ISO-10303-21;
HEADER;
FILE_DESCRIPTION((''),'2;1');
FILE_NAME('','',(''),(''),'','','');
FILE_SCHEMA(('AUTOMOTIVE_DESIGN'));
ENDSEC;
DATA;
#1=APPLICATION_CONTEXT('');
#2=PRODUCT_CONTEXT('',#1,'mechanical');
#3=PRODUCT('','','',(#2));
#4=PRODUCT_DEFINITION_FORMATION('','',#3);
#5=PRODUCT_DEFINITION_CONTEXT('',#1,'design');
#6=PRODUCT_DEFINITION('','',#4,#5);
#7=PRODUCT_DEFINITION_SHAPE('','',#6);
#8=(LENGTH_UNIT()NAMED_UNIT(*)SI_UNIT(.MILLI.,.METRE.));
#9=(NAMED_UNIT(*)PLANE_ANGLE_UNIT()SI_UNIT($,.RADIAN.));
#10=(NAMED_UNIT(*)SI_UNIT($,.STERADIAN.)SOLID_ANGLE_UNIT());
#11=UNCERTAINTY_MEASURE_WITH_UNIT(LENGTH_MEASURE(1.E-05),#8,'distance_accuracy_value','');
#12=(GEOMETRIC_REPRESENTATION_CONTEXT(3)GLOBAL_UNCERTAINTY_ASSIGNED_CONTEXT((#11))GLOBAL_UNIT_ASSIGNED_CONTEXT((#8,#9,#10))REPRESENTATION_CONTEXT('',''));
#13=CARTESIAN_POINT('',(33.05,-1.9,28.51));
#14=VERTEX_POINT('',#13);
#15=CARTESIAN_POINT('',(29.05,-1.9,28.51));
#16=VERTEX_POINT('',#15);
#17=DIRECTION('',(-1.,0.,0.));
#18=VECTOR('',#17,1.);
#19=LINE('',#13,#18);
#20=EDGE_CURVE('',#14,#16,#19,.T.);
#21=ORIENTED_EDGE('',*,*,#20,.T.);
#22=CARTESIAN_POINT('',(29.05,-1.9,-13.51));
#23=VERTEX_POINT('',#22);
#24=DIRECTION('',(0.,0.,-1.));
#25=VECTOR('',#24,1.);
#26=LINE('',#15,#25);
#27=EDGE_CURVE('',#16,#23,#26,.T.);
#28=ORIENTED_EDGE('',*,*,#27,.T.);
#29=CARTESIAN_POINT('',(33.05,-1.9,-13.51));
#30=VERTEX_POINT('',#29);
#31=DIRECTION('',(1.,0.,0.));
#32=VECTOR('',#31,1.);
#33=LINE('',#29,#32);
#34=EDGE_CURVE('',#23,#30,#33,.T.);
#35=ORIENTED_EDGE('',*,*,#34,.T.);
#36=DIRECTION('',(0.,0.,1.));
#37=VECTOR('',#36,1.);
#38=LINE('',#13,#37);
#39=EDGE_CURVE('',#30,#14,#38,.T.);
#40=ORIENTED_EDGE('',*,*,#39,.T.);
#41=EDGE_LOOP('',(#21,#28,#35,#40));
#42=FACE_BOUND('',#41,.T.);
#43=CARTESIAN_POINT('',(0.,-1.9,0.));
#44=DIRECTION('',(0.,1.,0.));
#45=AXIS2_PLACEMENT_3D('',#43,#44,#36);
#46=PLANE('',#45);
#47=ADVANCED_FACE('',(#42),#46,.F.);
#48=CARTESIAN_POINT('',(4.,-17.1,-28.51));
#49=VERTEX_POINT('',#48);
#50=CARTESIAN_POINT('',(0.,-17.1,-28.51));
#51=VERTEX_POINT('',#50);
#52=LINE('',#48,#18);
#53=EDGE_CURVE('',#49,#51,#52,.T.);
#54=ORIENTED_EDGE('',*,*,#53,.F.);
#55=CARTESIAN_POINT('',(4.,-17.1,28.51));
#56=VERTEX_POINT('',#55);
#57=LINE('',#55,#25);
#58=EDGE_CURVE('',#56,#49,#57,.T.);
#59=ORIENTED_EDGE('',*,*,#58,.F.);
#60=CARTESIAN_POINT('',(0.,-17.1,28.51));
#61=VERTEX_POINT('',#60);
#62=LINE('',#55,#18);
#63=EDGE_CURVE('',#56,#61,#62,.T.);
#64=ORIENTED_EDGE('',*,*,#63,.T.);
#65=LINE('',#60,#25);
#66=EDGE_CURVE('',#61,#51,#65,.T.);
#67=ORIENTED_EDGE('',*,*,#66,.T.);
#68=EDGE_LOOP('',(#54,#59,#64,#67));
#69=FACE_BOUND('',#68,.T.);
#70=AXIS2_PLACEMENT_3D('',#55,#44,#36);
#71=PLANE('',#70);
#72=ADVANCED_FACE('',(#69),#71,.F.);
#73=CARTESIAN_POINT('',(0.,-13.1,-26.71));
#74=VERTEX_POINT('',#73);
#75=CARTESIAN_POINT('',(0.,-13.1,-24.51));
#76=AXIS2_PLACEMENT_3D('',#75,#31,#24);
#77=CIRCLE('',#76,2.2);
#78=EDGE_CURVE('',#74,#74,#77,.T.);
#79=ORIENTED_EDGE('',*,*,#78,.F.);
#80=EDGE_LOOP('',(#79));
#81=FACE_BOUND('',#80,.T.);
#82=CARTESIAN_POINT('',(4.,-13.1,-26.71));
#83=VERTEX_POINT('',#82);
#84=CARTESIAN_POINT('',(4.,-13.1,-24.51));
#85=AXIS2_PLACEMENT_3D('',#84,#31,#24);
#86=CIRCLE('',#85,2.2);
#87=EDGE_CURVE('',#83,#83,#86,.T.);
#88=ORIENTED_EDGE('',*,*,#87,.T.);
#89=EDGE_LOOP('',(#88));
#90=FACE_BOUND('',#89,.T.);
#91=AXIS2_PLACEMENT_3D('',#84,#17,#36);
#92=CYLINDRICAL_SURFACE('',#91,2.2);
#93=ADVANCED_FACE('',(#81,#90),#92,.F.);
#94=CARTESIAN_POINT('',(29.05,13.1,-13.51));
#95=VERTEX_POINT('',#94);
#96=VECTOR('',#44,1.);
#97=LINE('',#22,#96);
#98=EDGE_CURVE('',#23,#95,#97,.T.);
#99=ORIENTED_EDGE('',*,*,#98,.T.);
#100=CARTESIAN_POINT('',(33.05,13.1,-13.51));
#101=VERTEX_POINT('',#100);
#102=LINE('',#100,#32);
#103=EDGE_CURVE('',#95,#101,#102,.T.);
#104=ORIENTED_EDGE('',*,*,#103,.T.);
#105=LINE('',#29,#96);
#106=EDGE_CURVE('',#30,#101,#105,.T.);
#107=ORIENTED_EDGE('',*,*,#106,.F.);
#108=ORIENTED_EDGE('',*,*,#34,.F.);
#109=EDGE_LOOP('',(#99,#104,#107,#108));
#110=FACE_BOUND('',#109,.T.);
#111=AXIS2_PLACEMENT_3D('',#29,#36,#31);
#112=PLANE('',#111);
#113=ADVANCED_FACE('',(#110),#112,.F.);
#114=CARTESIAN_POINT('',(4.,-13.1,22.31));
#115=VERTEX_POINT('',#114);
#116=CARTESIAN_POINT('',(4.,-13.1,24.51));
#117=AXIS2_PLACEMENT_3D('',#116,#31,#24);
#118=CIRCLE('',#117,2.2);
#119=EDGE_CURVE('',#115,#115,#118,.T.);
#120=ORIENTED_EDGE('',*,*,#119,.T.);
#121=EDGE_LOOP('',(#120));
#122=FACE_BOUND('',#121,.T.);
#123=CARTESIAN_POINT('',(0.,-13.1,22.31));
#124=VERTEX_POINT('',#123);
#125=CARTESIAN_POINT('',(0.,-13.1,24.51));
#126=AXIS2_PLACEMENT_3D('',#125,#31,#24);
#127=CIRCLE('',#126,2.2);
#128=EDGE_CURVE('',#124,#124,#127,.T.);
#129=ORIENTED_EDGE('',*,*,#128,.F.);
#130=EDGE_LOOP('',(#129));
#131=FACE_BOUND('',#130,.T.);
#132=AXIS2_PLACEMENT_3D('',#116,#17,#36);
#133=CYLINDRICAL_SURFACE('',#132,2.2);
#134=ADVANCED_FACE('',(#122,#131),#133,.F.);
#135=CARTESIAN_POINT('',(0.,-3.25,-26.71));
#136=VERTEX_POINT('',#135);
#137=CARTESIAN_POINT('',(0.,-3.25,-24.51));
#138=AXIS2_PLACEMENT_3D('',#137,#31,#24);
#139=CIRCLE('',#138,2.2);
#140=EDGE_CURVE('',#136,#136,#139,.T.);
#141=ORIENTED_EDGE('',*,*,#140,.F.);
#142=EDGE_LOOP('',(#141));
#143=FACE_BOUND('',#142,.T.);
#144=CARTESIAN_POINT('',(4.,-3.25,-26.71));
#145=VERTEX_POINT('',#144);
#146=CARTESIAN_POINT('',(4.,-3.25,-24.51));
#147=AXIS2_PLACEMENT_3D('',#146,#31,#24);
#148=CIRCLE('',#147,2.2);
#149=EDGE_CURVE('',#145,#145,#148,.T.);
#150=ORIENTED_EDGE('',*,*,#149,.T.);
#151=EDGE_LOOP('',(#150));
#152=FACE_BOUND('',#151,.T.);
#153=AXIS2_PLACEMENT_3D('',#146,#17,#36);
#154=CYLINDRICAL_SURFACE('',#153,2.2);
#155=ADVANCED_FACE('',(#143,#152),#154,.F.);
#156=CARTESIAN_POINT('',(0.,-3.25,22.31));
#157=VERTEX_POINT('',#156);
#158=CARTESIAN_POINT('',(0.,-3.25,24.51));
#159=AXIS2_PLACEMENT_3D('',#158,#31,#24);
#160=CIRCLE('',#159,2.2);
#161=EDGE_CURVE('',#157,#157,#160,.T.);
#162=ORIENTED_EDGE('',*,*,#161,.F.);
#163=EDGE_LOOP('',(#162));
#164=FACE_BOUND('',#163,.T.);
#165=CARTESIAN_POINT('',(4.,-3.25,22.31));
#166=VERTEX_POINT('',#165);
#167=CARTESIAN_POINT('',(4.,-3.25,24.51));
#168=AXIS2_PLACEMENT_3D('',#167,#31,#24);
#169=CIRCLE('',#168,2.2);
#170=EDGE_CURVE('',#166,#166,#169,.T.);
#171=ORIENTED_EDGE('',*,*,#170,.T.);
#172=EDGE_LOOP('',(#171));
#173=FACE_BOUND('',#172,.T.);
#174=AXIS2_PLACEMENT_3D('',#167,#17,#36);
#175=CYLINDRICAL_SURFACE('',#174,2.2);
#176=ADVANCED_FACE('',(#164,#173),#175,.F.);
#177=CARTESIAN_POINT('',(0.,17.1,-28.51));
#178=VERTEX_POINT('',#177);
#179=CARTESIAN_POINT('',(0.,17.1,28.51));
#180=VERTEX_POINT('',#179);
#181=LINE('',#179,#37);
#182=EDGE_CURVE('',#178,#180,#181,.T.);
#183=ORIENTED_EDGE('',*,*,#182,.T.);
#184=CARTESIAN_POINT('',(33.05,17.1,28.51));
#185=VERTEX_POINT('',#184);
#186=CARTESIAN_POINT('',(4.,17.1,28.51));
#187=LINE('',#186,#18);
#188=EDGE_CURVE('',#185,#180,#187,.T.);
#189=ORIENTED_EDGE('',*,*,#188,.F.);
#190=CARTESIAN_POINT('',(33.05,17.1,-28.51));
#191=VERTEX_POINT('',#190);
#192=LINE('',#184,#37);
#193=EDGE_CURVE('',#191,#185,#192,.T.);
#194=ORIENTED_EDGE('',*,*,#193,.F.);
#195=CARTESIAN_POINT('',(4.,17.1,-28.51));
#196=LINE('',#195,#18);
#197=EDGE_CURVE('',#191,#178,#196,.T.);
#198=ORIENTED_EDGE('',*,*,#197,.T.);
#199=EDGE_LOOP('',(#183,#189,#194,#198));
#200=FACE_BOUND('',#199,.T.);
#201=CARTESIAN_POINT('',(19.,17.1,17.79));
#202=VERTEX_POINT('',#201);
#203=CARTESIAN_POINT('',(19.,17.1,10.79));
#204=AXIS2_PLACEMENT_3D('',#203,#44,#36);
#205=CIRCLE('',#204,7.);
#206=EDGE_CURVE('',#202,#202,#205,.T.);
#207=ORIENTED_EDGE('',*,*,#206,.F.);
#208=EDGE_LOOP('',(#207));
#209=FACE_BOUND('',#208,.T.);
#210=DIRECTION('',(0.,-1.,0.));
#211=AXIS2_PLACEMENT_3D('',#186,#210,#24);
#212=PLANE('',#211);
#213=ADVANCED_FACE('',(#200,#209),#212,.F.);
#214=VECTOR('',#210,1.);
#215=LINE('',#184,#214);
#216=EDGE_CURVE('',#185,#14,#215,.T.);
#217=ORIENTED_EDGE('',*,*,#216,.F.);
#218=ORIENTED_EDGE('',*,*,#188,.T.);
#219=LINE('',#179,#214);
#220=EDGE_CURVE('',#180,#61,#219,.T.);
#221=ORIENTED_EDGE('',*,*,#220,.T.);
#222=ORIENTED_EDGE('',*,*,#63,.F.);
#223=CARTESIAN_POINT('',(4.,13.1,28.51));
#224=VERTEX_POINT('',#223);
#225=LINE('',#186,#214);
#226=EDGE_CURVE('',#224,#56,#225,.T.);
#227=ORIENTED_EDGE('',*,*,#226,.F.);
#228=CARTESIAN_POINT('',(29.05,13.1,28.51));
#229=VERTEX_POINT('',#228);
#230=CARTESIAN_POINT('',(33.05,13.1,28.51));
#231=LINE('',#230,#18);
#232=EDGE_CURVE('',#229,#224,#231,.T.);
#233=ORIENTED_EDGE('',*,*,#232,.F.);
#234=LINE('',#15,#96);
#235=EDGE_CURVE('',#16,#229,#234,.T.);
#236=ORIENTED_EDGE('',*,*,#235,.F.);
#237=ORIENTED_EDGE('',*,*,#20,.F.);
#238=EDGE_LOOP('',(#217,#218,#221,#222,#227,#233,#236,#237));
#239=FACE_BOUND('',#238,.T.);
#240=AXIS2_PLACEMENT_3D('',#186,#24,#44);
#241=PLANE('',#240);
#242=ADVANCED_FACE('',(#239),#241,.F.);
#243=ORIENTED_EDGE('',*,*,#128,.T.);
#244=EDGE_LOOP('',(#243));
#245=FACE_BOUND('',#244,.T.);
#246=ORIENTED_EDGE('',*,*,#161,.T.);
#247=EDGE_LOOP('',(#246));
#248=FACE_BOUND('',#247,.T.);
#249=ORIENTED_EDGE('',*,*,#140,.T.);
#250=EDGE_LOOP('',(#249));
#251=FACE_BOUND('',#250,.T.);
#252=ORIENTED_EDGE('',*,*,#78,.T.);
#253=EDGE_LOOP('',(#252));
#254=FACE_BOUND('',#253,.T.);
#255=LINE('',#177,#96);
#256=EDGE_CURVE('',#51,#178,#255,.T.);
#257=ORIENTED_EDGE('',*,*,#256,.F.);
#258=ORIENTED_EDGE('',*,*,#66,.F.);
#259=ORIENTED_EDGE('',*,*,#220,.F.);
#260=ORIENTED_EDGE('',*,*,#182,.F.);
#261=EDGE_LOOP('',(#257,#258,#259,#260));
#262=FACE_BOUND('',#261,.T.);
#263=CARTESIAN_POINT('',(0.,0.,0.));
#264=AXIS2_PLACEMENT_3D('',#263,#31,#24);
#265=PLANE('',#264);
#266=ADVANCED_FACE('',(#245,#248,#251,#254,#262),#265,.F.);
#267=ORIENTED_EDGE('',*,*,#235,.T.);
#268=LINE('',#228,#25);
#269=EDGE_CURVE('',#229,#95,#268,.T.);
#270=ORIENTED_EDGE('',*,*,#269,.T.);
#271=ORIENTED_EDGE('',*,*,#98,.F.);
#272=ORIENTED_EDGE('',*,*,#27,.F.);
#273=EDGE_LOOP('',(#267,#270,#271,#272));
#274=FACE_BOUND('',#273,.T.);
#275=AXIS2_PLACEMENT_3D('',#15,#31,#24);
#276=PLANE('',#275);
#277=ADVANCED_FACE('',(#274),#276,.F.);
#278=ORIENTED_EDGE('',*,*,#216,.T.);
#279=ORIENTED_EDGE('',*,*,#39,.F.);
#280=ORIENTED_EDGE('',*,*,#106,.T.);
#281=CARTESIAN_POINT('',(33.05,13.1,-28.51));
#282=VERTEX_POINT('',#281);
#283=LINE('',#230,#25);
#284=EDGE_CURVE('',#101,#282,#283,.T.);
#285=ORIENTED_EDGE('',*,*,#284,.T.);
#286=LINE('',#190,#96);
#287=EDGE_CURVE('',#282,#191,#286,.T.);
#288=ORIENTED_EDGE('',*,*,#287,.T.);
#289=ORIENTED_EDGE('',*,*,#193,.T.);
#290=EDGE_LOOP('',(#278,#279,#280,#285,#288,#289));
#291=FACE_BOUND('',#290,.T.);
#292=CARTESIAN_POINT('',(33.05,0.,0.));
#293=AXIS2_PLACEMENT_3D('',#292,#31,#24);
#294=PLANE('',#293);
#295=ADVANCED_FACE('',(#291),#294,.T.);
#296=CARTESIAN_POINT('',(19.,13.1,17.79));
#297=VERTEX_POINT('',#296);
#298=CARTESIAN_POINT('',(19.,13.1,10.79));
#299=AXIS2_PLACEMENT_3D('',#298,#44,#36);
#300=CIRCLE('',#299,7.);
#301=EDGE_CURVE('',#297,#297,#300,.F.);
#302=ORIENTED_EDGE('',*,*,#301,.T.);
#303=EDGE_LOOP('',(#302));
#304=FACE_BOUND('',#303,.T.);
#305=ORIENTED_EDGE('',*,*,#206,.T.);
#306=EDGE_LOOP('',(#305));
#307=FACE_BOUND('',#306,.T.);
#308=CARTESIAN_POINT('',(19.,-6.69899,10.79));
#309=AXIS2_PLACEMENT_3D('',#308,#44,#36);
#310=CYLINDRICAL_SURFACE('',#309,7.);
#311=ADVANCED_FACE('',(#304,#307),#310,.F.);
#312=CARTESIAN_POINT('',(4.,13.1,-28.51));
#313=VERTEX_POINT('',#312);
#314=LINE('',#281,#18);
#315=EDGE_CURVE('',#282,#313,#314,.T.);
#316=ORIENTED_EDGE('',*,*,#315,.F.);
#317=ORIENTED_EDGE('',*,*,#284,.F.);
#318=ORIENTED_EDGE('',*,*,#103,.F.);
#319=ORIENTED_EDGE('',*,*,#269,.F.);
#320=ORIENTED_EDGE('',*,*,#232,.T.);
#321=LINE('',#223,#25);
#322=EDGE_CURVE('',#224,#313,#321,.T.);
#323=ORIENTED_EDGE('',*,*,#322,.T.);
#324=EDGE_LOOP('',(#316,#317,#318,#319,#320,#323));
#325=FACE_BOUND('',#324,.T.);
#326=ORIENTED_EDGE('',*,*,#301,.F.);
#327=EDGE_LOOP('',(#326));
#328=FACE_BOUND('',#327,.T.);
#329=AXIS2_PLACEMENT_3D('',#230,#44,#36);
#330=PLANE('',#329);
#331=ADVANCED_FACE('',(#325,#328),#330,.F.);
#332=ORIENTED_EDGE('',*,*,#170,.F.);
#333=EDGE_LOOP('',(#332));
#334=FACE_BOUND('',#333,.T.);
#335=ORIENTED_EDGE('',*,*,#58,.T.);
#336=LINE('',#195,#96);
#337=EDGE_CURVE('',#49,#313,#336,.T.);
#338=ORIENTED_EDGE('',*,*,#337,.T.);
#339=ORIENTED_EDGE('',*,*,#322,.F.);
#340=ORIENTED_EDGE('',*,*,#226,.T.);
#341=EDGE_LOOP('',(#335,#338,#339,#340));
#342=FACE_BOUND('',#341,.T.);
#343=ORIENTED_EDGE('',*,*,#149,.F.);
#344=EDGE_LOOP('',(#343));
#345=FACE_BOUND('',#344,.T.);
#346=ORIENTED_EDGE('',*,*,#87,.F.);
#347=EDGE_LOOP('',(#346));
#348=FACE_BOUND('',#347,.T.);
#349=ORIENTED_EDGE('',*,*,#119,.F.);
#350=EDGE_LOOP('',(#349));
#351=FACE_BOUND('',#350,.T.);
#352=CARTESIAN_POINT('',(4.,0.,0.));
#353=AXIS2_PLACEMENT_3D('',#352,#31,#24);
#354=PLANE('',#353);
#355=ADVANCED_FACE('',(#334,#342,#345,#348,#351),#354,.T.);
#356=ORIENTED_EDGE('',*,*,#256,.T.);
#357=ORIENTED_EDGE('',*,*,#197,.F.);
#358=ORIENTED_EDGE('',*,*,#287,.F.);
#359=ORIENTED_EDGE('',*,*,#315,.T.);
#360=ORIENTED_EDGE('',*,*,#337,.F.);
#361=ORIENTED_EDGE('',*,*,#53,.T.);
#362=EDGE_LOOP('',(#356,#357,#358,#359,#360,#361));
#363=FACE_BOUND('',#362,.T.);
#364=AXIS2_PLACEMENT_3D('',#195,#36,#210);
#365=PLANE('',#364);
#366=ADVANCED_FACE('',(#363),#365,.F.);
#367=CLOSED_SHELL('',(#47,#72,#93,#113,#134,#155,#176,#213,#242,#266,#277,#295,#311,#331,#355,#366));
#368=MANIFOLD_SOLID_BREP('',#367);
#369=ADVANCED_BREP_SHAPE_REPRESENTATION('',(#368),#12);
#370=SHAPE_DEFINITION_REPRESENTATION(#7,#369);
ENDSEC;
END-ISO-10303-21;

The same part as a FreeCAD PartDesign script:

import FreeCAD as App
import Part
import Sketcher
Q = App.Units.Quantity


def add_polygon(sketch, points):
    """Adds a closed chain of lines whose ends are joined by coincident constraints."""
    first, n = sketch.GeometryCount, len(points)
    for a, b in zip(points, points[1:] + points[:1]):
        sketch.addGeometry(Part.LineSegment(App.Vector(*a, 0), App.Vector(*b, 0)), False)
    for i in range(n):
        sketch.addConstraint(Sketcher.Constraint("Coincident", first + i, 2, first + (i + 1) % n, 1))

doc = App.newDocument("Part")
body = doc.addObject("PartDesign::Body", "Body")

sketch1 = body.newObject("Sketcher::SketchObject", "Sketch")
sketch1.AttachmentSupport = (doc.getObject("YZ_Plane"), [""])
sketch1.MapMode = "FlatFace"
add_polygon(sketch1, [(17.1, 28.51), (-17.1, 28.51), (-17.1, -28.51), (17.1, -28.51)])
sketch1.addGeometry(Part.Circle(App.Vector(-13.1, 24.51, 0), App.Vector(0, 0, 1), 2.2), False)
sketch1.addGeometry(Part.Circle(App.Vector(-13.1, -24.51, 0), App.Vector(0, 0, 1), 2.2), False)
sketch1.addGeometry(Part.Circle(App.Vector(-3.25, 24.51, 0), App.Vector(0, 0, 1), 2.2), False)
sketch1.addGeometry(Part.Circle(App.Vector(-3.25, -24.51, 0), App.Vector(0, 0, 1), 2.2), False)
sketch1.addConstraint([
    Sketcher.Constraint("Horizontal", 0),
    Sketcher.Constraint("Vertical", 1),
    Sketcher.Constraint("Horizontal", 2),
    Sketcher.Constraint("Vertical", 3),
    Sketcher.Constraint("Equal", 4, 5),
    Sketcher.Constraint("Equal", 5, 6),
    Sketcher.Constraint("Equal", 6, 7),
    Sketcher.Constraint("Symmetric", 0, 2, 2, 2, -1, 1),
    Sketcher.Constraint("Symmetric", 4, 3, 5, 3, -1),
    Sketcher.Constraint("Symmetric", 6, 3, 7, 3, -1),
    Sketcher.Constraint("Horizontal", 4, 3, 6, 3),
    Sketcher.Constraint("Diameter", 4, Q("4.4 mm")),
    Sketcher.Constraint("DistanceX", 0, 2, 0, 1, Q("34.2 mm")),
    Sketcher.Constraint("DistanceX", 0, 2, 4, 3, Q("4 mm")),
    Sketcher.Constraint("DistanceY", 4, 3, 0, 2, Q("4 mm")),
    Sketcher.Constraint("DistanceY", 1, 2, 1, 1, Q("57.02 mm")),
    Sketcher.Constraint("DistanceX", 6, 3, -1, 1, Q("3.25 mm")),
])
pad1 = body.newObject("PartDesign::Pad", "Pad")
pad1.Profile = sketch1
pad1.Length = 4

sketch2 = body.newObject("Sketcher::SketchObject", "Sketch001")
sketch2.AttachmentSupport = (doc.getObject("YZ_Plane"), [""])
sketch2.MapMode = "FlatFace"
sketch2.AttachmentOffset = App.Placement(App.Vector(0, 0, 4), App.Rotation())
add_polygon(sketch2, [(17.1, 28.51), (13.1, 28.51), (13.1, -28.51), (17.1, -28.51)])
sketch2.addConstraint([
    Sketcher.Constraint("Horizontal", 0),
    Sketcher.Constraint("Vertical", 1),
    Sketcher.Constraint("Horizontal", 2),
    Sketcher.Constraint("Vertical", 3),
    Sketcher.Constraint("DistanceX", 0, 2, 0, 1, Q("4 mm")),
    Sketcher.Constraint("DistanceY", 1, 2, 1, 1, Q("57.02 mm")),
    Sketcher.Constraint("DistanceX", -1, 1, 0, 2, Q("13.1 mm")),
    Sketcher.Constraint("DistanceY", -1, 1, 0, 2, Q("28.51 mm")),
])
pad2 = body.newObject("PartDesign::Pad", "Pad001")
pad2.Profile = sketch2
pad2.Length = 29.05

sketch3 = body.newObject("Sketcher::SketchObject", "Sketch002")
sketch3.AttachmentSupport = (doc.getObject("XZ_Plane"), [""])
sketch3.MapMode = "FlatFace"
sketch3.AttachmentOffset = App.Placement(App.Vector(0, 0, -13.1), App.Rotation())
add_polygon(sketch3, [(29.05, 28.51), (29.05, -13.51), (33.05, -13.51), (33.05, 28.51)])
sketch3.addConstraint([
    Sketcher.Constraint("Vertical", 0),
    Sketcher.Constraint("Horizontal", 1),
    Sketcher.Constraint("Vertical", 2),
    Sketcher.Constraint("Horizontal", 3),
    Sketcher.Constraint("DistanceX", 1, 1, 1, 2, Q("4 mm")),
    Sketcher.Constraint("DistanceY", 0, 2, 0, 1, Q("42.02 mm")),
    Sketcher.Constraint("DistanceX", -1, 1, 0, 2, Q("29.05 mm")),
    Sketcher.Constraint("DistanceY", 0, 2, -1, 1, Q("13.51 mm")),
])
pad3 = body.newObject("PartDesign::Pad", "Pad002")
pad3.Profile = sketch3
pad3.Length = 15

sketch4 = body.newObject("Sketcher::SketchObject", "Sketch003")
sketch4.AttachmentSupport = (doc.getObject("XZ_Plane"), [""])
sketch4.MapMode = "FlatFace"
sketch4.AttachmentOffset = App.Placement(App.Vector(0, 0, -17.1), App.Rotation())
sketch4.addGeometry(Part.Circle(App.Vector(19, 10.79, 0), App.Vector(0, 0, 1), 7), False)
sketch4.addConstraint([
    Sketcher.Constraint("Diameter", 0, Q("14 mm")),
    Sketcher.Constraint("DistanceX", -1, 1, 0, 3, Q("19 mm")),
    Sketcher.Constraint("DistanceY", -1, 1, 0, 3, Q("10.79 mm")),
])
pocket1 = body.newObject("PartDesign::Pocket", "Pocket")
pocket1.Profile = sketch4
pocket1.Length = 4
pocket1.Reversed = True

doc.recompute()
